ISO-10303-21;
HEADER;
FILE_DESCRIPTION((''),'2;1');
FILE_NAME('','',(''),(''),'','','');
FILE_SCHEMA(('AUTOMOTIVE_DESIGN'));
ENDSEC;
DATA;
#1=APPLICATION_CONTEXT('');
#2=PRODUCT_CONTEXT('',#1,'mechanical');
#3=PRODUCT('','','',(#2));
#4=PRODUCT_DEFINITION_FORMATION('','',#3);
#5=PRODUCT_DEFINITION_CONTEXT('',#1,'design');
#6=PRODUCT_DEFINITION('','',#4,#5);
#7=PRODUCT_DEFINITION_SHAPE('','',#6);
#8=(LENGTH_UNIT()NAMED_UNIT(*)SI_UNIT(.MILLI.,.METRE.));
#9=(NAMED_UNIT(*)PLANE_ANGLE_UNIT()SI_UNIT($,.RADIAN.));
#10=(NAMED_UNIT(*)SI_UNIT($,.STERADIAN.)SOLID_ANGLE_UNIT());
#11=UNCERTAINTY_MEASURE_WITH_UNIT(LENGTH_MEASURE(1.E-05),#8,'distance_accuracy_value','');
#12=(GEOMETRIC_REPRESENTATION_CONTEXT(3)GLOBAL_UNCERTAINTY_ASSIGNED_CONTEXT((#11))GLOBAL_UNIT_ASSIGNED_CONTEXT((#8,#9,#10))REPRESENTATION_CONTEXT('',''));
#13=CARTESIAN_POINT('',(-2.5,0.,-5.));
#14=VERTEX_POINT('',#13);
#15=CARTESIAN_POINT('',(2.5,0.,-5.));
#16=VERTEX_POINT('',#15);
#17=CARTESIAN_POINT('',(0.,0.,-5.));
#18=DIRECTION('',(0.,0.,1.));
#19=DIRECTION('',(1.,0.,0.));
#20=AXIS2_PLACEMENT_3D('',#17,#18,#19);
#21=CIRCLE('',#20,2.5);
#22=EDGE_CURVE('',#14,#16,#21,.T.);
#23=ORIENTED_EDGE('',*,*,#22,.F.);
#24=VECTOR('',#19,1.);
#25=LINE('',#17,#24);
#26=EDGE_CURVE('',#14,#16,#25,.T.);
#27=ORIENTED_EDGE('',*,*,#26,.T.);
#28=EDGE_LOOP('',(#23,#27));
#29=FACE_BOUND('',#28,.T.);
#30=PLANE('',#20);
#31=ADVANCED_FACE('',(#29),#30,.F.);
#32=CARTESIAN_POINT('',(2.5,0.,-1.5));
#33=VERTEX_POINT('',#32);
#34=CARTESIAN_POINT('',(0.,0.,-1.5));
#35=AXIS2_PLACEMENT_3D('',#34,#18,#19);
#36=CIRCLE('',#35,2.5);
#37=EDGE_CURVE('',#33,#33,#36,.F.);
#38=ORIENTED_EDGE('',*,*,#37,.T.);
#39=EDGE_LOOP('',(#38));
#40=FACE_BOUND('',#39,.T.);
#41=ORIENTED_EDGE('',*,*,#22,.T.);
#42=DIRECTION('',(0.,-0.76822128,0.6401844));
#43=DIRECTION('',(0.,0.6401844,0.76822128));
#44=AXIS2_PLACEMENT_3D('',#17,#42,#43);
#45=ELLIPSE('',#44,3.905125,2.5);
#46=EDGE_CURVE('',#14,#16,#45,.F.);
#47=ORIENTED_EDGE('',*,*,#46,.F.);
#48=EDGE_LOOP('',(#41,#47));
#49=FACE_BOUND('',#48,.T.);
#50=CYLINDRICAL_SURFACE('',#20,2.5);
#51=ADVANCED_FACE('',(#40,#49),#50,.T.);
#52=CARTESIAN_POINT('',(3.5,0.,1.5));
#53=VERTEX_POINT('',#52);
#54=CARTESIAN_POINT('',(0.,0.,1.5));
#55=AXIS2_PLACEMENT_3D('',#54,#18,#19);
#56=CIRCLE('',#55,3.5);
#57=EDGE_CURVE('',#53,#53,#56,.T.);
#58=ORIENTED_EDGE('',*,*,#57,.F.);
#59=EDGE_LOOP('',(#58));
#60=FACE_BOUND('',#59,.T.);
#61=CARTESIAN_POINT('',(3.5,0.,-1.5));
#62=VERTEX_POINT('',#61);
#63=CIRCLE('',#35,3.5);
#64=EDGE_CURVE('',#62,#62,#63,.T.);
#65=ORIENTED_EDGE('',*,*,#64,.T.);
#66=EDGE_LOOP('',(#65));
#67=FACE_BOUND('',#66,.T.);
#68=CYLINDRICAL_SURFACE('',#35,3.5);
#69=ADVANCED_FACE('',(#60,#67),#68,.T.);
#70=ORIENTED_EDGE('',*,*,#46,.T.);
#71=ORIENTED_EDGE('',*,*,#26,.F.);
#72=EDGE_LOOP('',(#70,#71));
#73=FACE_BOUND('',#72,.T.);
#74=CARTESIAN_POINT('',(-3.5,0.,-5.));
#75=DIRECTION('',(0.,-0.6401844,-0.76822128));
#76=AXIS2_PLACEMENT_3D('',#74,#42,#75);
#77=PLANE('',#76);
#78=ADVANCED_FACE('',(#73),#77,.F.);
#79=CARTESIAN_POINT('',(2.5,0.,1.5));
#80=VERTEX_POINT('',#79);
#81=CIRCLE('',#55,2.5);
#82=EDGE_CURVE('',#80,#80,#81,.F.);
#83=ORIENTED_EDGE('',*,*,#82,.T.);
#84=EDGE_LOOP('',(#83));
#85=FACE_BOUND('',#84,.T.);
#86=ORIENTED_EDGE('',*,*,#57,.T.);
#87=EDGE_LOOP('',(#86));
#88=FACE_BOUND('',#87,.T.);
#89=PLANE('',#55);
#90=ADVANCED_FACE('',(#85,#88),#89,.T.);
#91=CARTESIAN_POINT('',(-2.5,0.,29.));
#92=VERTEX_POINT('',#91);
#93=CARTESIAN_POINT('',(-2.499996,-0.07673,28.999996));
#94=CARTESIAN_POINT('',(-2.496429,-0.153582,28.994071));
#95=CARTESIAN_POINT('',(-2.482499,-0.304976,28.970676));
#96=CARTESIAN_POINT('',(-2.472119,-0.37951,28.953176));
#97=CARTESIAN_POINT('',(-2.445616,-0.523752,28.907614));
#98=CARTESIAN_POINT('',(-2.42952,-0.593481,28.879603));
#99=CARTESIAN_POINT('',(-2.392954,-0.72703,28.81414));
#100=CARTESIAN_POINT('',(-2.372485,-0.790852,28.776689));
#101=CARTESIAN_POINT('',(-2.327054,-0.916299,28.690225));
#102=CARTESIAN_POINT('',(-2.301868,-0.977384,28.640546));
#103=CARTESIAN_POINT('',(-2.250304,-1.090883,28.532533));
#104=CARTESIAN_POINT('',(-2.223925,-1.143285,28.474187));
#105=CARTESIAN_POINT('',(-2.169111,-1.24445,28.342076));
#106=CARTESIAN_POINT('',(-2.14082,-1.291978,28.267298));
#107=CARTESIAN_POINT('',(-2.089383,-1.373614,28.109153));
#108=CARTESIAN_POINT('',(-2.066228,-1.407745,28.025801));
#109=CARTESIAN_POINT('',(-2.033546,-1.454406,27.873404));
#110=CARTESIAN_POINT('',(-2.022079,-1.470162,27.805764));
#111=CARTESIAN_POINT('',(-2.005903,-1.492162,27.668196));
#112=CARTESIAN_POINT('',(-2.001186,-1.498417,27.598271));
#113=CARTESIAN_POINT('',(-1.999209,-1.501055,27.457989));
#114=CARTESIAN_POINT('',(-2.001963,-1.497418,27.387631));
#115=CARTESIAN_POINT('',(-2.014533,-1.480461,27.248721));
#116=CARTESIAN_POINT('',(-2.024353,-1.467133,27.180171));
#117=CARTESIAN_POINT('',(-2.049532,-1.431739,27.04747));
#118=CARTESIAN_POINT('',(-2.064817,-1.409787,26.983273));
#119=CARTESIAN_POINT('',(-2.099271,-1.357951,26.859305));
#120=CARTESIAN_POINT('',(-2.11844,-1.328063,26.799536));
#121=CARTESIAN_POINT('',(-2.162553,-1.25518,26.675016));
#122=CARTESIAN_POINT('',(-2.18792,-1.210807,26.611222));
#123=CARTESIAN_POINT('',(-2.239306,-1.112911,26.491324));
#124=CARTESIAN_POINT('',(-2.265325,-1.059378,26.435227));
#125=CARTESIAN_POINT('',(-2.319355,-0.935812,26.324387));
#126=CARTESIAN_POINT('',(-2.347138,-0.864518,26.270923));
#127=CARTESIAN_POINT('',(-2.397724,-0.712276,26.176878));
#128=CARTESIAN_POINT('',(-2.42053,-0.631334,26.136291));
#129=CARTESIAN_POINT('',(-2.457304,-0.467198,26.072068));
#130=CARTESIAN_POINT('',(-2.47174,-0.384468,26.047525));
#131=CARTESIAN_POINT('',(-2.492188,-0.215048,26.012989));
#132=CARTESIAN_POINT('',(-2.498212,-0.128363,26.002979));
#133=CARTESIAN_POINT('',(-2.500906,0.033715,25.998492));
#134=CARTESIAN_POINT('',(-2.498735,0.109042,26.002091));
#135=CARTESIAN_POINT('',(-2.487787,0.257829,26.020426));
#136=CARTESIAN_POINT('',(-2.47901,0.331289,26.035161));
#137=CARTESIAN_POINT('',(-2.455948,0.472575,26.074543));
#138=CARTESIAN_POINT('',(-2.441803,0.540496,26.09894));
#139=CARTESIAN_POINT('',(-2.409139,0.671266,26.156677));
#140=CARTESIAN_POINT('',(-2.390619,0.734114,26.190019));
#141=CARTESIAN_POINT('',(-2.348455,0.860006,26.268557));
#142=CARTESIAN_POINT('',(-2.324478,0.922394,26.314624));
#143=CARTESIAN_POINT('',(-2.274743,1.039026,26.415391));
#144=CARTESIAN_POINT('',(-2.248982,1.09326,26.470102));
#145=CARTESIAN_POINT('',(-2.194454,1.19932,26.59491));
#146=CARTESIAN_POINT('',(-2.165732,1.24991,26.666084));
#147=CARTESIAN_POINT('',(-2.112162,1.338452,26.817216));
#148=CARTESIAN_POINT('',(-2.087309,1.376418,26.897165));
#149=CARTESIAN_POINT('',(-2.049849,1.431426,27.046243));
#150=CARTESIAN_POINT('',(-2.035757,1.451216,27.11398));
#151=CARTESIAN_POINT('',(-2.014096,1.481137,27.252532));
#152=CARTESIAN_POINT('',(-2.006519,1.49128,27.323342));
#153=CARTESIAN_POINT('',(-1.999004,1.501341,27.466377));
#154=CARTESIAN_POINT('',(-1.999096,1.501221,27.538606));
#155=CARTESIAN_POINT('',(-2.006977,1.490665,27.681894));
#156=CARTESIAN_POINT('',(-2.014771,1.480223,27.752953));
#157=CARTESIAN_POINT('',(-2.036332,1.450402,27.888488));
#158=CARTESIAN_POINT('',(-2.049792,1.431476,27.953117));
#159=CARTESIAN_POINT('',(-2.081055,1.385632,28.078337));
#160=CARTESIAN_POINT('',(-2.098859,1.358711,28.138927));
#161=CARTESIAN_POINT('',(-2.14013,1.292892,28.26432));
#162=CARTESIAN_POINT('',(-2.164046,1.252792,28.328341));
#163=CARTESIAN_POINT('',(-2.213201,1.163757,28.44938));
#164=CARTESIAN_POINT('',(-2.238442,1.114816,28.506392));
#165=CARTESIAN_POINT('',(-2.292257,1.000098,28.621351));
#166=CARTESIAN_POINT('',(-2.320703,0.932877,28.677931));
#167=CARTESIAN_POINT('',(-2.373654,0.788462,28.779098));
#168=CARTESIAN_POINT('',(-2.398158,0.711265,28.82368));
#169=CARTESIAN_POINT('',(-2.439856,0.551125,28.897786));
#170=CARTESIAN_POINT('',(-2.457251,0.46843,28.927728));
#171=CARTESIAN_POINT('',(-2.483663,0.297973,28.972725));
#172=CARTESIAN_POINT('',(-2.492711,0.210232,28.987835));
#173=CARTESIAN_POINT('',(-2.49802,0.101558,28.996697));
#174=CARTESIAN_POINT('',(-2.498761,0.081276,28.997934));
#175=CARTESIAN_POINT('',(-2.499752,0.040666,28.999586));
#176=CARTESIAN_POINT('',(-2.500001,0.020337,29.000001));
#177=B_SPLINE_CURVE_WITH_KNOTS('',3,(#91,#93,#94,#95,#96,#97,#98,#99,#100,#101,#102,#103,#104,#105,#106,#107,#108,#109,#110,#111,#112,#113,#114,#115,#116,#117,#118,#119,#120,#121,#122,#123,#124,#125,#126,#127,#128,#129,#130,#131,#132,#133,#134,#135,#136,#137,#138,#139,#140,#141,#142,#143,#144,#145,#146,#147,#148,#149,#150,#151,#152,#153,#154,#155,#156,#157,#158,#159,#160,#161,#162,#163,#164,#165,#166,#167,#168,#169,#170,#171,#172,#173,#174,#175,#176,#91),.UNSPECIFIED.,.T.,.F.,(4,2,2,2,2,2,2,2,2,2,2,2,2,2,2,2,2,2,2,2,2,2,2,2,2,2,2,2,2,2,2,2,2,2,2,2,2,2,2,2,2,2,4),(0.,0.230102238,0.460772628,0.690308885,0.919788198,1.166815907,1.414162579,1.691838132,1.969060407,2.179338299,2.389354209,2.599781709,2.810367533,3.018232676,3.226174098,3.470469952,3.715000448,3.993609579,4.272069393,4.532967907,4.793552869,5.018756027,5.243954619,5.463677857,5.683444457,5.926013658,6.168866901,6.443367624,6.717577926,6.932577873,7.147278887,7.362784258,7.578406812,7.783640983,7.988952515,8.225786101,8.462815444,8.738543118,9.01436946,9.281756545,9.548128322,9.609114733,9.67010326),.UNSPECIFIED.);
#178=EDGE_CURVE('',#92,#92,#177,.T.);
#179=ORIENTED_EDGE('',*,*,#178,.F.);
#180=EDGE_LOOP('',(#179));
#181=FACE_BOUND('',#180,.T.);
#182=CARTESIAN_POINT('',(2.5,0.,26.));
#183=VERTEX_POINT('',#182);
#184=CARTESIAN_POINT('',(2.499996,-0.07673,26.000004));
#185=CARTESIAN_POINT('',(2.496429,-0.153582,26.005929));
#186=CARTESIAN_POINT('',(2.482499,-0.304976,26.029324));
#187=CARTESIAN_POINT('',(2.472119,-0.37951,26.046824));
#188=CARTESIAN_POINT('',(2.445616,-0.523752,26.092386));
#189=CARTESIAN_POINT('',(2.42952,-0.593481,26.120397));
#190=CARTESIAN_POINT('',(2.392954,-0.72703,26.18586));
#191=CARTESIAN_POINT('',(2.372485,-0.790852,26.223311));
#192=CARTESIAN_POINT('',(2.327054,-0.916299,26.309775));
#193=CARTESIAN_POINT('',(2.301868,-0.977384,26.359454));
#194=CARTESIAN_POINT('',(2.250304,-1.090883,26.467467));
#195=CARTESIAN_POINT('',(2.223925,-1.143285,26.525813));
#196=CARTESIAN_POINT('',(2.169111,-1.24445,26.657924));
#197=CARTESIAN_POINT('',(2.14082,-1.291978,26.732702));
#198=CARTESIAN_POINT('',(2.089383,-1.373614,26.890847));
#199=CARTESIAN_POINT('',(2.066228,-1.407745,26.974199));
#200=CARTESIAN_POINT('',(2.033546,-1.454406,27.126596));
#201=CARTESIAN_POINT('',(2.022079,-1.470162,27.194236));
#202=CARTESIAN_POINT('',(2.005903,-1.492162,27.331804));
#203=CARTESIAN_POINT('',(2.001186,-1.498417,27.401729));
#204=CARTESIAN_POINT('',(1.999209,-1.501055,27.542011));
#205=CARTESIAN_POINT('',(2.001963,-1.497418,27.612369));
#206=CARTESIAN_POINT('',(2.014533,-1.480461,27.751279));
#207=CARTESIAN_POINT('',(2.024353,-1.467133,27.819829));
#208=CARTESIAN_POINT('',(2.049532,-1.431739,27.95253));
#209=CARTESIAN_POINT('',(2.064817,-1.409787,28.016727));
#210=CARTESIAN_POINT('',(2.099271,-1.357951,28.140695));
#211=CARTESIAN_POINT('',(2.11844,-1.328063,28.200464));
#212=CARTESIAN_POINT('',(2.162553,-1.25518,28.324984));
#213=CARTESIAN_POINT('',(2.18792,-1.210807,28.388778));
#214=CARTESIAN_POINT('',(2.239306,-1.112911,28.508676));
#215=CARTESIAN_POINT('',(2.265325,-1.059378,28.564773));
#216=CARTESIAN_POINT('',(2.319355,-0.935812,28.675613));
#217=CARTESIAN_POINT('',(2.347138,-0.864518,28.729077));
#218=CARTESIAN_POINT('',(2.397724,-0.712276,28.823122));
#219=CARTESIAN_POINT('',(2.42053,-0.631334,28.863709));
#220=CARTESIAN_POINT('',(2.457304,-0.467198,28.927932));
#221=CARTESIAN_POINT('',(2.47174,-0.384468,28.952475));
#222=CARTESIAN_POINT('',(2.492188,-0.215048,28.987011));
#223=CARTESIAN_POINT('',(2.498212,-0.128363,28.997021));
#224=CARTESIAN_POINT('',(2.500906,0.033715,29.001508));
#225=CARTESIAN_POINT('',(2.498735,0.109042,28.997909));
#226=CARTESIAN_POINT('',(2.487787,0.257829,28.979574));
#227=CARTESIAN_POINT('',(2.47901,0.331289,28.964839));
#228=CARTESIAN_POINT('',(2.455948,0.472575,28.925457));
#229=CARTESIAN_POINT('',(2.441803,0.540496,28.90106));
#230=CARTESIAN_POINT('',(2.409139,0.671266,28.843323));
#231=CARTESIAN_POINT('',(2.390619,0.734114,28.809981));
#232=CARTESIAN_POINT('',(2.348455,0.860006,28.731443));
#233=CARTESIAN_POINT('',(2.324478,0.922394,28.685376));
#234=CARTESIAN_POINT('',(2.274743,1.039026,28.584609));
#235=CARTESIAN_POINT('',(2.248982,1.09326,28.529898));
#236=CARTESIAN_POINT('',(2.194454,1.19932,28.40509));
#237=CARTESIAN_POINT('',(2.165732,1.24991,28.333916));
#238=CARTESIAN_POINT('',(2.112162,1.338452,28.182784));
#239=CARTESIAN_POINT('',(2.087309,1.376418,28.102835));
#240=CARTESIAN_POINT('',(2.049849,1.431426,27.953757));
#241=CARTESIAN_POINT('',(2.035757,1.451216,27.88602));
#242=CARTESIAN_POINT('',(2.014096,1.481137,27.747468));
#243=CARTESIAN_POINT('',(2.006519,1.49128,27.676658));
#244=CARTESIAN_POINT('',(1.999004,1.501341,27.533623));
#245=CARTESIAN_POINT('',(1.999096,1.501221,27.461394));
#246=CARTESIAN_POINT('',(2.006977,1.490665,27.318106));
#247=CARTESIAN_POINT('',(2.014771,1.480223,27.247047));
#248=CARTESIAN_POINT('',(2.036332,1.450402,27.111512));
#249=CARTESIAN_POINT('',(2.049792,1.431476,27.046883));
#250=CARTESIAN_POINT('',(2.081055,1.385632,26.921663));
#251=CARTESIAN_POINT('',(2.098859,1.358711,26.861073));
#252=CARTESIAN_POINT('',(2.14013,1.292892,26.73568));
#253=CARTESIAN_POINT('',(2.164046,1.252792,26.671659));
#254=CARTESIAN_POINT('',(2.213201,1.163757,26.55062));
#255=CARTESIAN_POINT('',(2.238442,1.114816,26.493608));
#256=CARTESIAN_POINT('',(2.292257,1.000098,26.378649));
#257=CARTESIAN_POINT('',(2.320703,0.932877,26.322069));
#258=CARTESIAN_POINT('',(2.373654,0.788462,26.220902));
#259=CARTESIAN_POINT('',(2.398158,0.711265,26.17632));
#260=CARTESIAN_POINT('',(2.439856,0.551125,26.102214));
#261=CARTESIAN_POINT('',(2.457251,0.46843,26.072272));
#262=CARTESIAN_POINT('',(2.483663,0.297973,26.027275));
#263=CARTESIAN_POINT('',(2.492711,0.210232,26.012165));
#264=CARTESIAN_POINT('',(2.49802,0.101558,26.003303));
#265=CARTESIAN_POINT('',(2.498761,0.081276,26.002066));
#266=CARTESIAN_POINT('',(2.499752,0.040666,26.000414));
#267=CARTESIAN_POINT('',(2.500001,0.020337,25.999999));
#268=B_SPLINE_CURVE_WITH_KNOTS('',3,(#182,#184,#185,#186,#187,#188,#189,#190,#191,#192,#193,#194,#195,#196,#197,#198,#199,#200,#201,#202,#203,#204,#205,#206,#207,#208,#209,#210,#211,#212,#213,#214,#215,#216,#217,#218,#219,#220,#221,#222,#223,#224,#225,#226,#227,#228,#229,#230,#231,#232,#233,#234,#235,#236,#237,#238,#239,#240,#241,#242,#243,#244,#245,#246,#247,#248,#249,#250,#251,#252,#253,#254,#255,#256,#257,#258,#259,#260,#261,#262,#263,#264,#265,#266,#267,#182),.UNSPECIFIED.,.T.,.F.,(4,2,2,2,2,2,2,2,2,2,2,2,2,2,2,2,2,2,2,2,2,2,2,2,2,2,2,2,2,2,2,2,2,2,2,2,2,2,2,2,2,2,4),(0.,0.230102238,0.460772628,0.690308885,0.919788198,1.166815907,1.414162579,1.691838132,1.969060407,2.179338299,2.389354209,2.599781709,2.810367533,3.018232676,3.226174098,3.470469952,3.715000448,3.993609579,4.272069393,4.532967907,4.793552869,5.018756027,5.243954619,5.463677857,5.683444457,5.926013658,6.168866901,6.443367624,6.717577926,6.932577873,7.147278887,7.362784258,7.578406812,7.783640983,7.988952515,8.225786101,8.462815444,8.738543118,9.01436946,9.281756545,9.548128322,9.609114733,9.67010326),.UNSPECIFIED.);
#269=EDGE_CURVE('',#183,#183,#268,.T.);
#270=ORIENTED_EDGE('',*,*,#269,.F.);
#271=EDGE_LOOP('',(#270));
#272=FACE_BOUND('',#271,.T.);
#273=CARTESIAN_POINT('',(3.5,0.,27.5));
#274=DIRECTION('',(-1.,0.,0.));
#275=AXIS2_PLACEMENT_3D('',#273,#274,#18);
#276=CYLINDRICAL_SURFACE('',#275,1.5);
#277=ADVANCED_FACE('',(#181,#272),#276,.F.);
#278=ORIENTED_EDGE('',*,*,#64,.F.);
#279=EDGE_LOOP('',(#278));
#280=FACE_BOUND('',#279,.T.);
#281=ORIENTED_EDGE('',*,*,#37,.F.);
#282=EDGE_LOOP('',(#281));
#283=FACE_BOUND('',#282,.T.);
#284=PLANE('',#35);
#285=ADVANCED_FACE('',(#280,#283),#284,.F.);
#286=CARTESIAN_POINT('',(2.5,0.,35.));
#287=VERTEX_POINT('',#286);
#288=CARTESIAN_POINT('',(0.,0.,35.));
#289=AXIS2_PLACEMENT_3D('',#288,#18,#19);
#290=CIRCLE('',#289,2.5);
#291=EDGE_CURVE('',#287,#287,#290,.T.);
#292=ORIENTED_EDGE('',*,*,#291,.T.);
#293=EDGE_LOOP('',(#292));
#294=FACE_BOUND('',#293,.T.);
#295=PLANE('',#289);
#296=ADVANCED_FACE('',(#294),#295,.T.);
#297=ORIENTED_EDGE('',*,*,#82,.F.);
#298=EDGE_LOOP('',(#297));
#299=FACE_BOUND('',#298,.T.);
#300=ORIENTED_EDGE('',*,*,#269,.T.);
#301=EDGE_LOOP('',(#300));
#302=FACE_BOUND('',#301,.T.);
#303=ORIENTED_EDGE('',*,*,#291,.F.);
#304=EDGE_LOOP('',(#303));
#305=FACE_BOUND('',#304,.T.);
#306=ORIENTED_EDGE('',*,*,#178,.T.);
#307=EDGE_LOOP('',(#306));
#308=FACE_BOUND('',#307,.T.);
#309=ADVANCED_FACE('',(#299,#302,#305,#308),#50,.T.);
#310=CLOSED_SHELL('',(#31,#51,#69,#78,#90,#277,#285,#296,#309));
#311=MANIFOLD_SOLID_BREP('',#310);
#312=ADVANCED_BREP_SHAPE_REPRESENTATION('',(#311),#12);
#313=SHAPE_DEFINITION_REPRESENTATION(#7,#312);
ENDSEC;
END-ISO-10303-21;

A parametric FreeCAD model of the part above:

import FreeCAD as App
import Part
import Sketcher

doc = App.newDocument("Part")
body = doc.addObject("PartDesign::Body", "Body")

sketch1 = body.newObject("Sketcher::SketchObject", "Sketch")
sketch1.AttachmentSupport = (doc.getObject("XY_Plane"), [""])
sketch1.MapMode = "FlatFace"
sketch1.addGeometry(Part.Circle(App.Vector(0, 0, 0), App.Vector(0, 0, 1), 2.5), False)
sketch1.addConstraint([
    Sketcher.Constraint("Coincident", 0, 3, -1, 1),
    Sketcher.Constraint("Diameter", 0, 5.0),
])
pad1 = body.newObject("PartDesign::Pad", "Pad")
pad1.Profile = sketch1
pad1.Type = "TwoLengths"
pad1.Length = 35
pad1.Length2 = 5

sketch2 = body.newObject("Sketcher::SketchObject", "Sketch001")
sketch2.AttachmentSupport = (doc.getObject("XY_Plane"), [""])
sketch2.MapMode = "FlatFace"
sketch2.addGeometry(Part.Circle(App.Vector(0, 0, 0), App.Vector(0, 0, 1), 3.5), False)
sketch2.addConstraint([
    Sketcher.Constraint("Coincident", 0, 3, -1, 1),
    Sketcher.Constraint("Diameter", 0, 7.0),
])
pad2 = body.newObject("PartDesign::Pad", "Pad001")
pad2.Profile = sketch2
pad2.Type = "TwoLengths"
pad2.Length = 1.5
pad2.Length2 = 1.5

sketch3 = body.newObject("Sketcher::SketchObject", "Sketch002")
sketch3.AttachmentSupport = (doc.getObject("YZ_Plane"), [""])
sketch3.MapMode = "FlatFace"
sketch3.addGeometry(Part.Circle(App.Vector(0, 27.5, 0), App.Vector(0, 0, 1), 1.5), False)
sketch3.addConstraint([
    Sketcher.Constraint("PointOnObject", 0, 3, -2),
    Sketcher.Constraint("Diameter", 0, 3.0),
    Sketcher.Constraint("DistanceY", -1, 1, 0, 3, 27.5),
])
pocket1 = body.newObject("PartDesign::Pocket", "Pocket")
pocket1.Profile = sketch3
pocket1.Type = "ThroughAll"
pocket1.Midplane = True

sketch4 = body.newObject("Sketcher::SketchObject", "Sketch003")
sketch4.AttachmentSupport = (doc.getObject("YZ_Plane"), [""])
sketch4.MapMode = "FlatFace"
sketch4.addGeometry([
    Part.LineSegment(App.Vector(2.5, -2, 0), App.Vector(0, -5, 0)),
    Part.LineSegment(App.Vector(0, -5, 0), App.Vector(2.5, -5, 0)),
    Part.LineSegment(App.Vector(2.5, -5, 0), App.Vector(2.5, -2, 0)),
], False)
sketch4.addConstraint([
    Sketcher.Constraint("Coincident", 0, 2, 1, 1),
    Sketcher.Constraint("Coincident", 1, 2, 2, 1),
    Sketcher.Constraint("Coincident", 2, 2, 0, 1),
    Sketcher.Constraint("Horizontal", 1),
    Sketcher.Constraint("Vertical", 2),
    Sketcher.Constraint("PointOnObject", 0, 2, -2),
    Sketcher.Constraint("DistanceY", 2, 1, 2, 2, 3.0),
    Sketcher.Constraint("DistanceX", 1, 1, 1, 2, 2.5),
    Sketcher.Constraint("DistanceY", 0, 2, -1, 1, 5.0),
])
pocket2 = body.newObject("PartDesign::Pocket", "Pocket001")
pocket2.Profile = sketch4
pocket2.Type = "ThroughAll"
pocket2.Midplane = True

doc.recompute()
